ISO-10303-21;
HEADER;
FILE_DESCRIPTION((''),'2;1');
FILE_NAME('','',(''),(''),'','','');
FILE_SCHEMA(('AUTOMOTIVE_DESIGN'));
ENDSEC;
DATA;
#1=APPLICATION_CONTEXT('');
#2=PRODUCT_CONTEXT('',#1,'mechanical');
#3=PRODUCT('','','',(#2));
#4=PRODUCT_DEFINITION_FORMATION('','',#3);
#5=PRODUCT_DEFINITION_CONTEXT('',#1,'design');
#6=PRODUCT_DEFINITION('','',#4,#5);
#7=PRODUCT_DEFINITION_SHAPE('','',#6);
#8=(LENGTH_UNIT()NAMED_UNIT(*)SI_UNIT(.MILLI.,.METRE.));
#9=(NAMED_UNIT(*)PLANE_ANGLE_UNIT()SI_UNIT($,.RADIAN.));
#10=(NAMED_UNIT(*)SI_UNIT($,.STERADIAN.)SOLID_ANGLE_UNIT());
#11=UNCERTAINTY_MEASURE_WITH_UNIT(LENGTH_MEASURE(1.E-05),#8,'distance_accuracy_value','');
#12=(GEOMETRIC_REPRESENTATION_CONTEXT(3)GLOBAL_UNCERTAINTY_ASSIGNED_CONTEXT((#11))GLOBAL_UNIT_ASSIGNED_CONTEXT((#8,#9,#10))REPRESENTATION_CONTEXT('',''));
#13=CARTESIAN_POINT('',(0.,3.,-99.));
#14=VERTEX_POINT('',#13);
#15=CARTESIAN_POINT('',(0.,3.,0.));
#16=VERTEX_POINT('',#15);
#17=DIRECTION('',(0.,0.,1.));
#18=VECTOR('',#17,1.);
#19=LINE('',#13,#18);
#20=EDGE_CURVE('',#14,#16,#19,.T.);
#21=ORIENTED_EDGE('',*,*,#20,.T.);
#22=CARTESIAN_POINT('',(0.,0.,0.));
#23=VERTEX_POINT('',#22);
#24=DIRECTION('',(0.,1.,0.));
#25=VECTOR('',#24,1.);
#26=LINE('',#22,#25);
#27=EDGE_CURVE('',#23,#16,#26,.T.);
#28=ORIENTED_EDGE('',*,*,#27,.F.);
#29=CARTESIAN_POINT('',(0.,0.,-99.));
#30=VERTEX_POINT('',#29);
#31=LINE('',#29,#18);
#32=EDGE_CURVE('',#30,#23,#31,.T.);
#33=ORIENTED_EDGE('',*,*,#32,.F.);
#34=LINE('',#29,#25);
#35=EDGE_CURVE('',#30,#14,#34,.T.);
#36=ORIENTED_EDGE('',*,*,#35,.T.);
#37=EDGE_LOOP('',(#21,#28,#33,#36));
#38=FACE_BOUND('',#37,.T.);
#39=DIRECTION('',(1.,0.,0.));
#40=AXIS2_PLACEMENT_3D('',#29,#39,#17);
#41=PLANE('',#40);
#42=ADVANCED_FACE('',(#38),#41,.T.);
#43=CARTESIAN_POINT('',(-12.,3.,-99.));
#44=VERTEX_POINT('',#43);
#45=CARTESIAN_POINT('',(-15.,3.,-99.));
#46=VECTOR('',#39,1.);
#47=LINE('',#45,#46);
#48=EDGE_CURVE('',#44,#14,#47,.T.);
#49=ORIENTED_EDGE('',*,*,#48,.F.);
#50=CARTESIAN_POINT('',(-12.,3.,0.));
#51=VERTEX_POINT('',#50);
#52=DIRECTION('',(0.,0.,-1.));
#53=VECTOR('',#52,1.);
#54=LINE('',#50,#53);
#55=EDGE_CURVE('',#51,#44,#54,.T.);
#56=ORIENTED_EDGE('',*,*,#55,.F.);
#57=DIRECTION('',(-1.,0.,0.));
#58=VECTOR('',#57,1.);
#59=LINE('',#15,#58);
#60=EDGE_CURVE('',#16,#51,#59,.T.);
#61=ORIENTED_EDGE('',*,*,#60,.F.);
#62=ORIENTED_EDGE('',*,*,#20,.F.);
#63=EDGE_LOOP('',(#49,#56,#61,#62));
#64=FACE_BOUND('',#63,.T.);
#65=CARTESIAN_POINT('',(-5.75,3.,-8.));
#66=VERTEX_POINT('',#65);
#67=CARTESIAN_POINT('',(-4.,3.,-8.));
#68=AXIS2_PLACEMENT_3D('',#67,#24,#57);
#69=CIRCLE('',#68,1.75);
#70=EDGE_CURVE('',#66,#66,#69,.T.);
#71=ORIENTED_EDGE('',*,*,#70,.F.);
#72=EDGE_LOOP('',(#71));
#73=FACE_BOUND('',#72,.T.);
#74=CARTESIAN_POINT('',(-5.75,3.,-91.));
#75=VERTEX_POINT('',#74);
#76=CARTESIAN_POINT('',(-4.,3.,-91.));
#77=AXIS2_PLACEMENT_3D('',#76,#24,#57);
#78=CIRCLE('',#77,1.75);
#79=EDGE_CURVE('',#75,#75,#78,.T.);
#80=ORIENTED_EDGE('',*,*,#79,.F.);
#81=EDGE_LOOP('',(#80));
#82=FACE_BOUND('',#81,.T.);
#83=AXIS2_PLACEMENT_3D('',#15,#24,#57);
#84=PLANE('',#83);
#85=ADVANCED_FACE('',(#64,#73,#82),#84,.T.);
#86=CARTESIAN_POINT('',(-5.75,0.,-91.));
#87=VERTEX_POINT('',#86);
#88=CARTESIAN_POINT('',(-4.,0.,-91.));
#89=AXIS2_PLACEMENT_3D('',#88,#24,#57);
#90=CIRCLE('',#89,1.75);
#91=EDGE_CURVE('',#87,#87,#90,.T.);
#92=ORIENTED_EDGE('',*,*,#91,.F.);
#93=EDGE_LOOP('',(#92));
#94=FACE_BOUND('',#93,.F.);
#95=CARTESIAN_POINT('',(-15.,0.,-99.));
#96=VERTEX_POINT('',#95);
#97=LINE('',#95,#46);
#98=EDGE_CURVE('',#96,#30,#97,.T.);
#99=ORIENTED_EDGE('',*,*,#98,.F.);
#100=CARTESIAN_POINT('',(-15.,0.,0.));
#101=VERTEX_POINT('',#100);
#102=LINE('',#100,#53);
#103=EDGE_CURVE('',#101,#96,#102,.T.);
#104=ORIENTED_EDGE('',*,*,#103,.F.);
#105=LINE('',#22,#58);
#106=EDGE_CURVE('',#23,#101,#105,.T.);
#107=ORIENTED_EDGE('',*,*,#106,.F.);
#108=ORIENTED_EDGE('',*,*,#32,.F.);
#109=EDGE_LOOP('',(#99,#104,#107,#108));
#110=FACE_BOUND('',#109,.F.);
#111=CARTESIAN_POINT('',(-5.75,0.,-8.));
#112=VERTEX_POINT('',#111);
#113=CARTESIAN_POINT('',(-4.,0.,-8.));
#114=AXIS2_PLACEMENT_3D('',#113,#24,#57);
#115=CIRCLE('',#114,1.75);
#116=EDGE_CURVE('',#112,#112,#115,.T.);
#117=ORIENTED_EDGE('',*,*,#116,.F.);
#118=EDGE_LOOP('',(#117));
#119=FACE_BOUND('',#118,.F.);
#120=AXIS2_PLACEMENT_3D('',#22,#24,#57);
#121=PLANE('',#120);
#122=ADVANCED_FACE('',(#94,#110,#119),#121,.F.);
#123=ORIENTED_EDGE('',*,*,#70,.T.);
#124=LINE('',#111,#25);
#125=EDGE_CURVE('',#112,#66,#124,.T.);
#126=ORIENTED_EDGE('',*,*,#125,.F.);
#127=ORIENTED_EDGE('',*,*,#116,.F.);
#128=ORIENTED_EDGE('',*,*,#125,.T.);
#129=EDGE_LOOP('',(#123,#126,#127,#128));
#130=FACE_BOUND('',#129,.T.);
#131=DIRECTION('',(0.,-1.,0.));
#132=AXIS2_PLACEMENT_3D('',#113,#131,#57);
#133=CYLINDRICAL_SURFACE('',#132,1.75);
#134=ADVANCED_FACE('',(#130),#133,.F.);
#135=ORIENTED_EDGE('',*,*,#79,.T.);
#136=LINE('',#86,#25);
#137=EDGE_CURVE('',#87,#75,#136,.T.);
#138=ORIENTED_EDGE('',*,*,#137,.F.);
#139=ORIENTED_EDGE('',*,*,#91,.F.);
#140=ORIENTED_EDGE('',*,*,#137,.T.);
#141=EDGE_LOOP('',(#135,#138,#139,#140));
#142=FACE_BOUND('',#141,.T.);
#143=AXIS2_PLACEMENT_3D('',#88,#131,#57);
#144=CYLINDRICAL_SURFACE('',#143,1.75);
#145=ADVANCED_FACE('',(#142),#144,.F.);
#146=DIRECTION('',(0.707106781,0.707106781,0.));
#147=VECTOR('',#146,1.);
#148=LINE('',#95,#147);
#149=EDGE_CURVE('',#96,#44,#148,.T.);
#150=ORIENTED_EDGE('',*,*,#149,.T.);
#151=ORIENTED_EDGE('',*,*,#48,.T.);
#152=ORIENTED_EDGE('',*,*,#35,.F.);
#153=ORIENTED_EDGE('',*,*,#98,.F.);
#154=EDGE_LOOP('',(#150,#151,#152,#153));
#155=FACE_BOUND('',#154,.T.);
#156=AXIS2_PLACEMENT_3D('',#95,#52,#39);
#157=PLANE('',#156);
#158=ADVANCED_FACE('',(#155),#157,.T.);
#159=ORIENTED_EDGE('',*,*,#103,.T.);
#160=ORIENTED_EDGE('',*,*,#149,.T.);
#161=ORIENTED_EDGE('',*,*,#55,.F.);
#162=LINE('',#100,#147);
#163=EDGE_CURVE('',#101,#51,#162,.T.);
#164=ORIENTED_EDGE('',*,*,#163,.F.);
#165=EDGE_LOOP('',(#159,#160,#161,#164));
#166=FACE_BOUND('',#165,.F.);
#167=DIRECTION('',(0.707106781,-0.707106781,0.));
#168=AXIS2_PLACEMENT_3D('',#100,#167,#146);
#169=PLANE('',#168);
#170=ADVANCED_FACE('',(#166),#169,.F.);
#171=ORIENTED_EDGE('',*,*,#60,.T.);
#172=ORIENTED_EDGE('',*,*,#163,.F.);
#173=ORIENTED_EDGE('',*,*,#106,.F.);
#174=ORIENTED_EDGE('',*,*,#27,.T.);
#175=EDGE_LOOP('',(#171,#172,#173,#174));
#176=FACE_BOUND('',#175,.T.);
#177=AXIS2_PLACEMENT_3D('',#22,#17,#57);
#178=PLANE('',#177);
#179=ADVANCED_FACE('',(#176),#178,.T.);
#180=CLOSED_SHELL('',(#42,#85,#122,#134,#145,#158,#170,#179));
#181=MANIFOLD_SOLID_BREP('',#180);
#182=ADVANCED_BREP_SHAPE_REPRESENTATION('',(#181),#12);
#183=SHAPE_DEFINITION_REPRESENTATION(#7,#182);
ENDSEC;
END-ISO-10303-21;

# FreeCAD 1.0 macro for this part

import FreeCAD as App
import Part
import Sketcher

V = App.Vector

doc = App.newDocument("Part")
body = doc.addObject("PartDesign::Body", "Body")

sketch1 = body.newObject("Sketcher::SketchObject", "Sketch")
sketch1.AttachmentSupport = (doc.getObject("XZ_Plane"), [""])
sketch1.MapMode = "FlatFace"
sketch1.addGeometry(Part.LineSegment(V(-15, 0, 0), V(0, 0, 0)), False)
sketch1.addGeometry(Part.LineSegment(V(0, 0, 0), V(0, -99, 0)), False)
sketch1.addGeometry(Part.LineSegment(V(0, -99, 0), V(-15, -99, 0)), False)
sketch1.addGeometry(Part.LineSegment(V(-15, -99, 0), V(-15, 0, 0)), False)
sketch1.addGeometry(Part.Circle(V(-4, -91, 0), V(0, 0, 1), 1.75), False)
sketch1.addGeometry(Part.Circle(V(-4, -8, 0), V(0, 0, 1), 1.75), False)
sketch1.addConstraint(Sketcher.Constraint("Coincident", 0, 2, 1, 1))
sketch1.addConstraint(Sketcher.Constraint("Coincident", 1, 2, 2, 1))
sketch1.addConstraint(Sketcher.Constraint("Coincident", 2, 2, 3, 1))
sketch1.addConstraint(Sketcher.Constraint("Coincident", 3, 2, 0, 1))
sketch1.addConstraint(Sketcher.Constraint("Horizontal", 0))
sketch1.addConstraint(Sketcher.Constraint("Vertical", 1))
sketch1.addConstraint(Sketcher.Constraint("Horizontal", 2))
sketch1.addConstraint(Sketcher.Constraint("Vertical", 3))
sketch1.addConstraint(Sketcher.Constraint("Coincident", 0, 2, -1, 1))
sketch1.addConstraint(Sketcher.Constraint("Equal", 4, 5))
sketch1.addConstraint(Sketcher.Constraint("Vertical", 4, 3, 5, 3))
sketch1.addConstraint(Sketcher.Constraint("Diameter", 4, 3.5))
sketch1.addConstraint(Sketcher.Constraint("DistanceX", 0, 1, 0, 2, 15.0))
sketch1.addConstraint(Sketcher.Constraint("DistanceY", 1, 2, 1, 1, 99.0))
sketch1.addConstraint(Sketcher.Constraint("DistanceX", 4, 3, -1, 1, 4.0))
sketch1.addConstraint(Sketcher.Constraint("DistanceY", 5, 3, -1, 1, 8.0))
sketch1.addConstraint(Sketcher.Constraint("DistanceY", 4, 3, 5, 3, 83.0))
pad1 = body.newObject("PartDesign::Pad", "Pad")
pad1.Profile = sketch1
pad1.Length = 3
pad1.Reversed = True

sketch2 = body.newObject("Sketcher::SketchObject", "Sketch001")
sketch2.AttachmentSupport = (doc.getObject("XY_Plane"), [""])
sketch2.MapMode = "FlatFace"
sketch2.addGeometry(Part.LineSegment(V(-15, 3, 0), V(-15, 0, 0)), False)
sketch2.addGeometry(Part.LineSegment(V(-15, 0, 0), V(-12, 3, 0)), False)
sketch2.addGeometry(Part.LineSegment(V(-12, 3, 0), V(-15, 3, 0)), False)
sketch2.addConstraint(Sketcher.Constraint("Coincident", 0, 2, 1, 1))
sketch2.addConstraint(Sketcher.Constraint("Coincident", 1, 2, 2, 1))
sketch2.addConstraint(Sketcher.Constraint("Coincident", 2, 2, 0, 1))
sketch2.addConstraint(Sketcher.Constraint("Vertical", 0))
sketch2.addConstraint(Sketcher.Constraint("Horizontal", 2))
sketch2.addConstraint(Sketcher.Constraint("PointOnObject", 0, 2, -1))
sketch2.addConstraint(Sketcher.Constraint("Equal", 2, 0))
sketch2.addConstraint(Sketcher.Constraint("DistanceX", 2, 2, 2, 1, 3.0))
sketch2.addConstraint(Sketcher.Constraint("DistanceX", 0, 2, -1, 1, 15.0))
pocket1 = body.newObject("PartDesign::Pocket", "Pocket")
pocket1.Profile = sketch2
pocket1.Length = 99

doc.recompute()
